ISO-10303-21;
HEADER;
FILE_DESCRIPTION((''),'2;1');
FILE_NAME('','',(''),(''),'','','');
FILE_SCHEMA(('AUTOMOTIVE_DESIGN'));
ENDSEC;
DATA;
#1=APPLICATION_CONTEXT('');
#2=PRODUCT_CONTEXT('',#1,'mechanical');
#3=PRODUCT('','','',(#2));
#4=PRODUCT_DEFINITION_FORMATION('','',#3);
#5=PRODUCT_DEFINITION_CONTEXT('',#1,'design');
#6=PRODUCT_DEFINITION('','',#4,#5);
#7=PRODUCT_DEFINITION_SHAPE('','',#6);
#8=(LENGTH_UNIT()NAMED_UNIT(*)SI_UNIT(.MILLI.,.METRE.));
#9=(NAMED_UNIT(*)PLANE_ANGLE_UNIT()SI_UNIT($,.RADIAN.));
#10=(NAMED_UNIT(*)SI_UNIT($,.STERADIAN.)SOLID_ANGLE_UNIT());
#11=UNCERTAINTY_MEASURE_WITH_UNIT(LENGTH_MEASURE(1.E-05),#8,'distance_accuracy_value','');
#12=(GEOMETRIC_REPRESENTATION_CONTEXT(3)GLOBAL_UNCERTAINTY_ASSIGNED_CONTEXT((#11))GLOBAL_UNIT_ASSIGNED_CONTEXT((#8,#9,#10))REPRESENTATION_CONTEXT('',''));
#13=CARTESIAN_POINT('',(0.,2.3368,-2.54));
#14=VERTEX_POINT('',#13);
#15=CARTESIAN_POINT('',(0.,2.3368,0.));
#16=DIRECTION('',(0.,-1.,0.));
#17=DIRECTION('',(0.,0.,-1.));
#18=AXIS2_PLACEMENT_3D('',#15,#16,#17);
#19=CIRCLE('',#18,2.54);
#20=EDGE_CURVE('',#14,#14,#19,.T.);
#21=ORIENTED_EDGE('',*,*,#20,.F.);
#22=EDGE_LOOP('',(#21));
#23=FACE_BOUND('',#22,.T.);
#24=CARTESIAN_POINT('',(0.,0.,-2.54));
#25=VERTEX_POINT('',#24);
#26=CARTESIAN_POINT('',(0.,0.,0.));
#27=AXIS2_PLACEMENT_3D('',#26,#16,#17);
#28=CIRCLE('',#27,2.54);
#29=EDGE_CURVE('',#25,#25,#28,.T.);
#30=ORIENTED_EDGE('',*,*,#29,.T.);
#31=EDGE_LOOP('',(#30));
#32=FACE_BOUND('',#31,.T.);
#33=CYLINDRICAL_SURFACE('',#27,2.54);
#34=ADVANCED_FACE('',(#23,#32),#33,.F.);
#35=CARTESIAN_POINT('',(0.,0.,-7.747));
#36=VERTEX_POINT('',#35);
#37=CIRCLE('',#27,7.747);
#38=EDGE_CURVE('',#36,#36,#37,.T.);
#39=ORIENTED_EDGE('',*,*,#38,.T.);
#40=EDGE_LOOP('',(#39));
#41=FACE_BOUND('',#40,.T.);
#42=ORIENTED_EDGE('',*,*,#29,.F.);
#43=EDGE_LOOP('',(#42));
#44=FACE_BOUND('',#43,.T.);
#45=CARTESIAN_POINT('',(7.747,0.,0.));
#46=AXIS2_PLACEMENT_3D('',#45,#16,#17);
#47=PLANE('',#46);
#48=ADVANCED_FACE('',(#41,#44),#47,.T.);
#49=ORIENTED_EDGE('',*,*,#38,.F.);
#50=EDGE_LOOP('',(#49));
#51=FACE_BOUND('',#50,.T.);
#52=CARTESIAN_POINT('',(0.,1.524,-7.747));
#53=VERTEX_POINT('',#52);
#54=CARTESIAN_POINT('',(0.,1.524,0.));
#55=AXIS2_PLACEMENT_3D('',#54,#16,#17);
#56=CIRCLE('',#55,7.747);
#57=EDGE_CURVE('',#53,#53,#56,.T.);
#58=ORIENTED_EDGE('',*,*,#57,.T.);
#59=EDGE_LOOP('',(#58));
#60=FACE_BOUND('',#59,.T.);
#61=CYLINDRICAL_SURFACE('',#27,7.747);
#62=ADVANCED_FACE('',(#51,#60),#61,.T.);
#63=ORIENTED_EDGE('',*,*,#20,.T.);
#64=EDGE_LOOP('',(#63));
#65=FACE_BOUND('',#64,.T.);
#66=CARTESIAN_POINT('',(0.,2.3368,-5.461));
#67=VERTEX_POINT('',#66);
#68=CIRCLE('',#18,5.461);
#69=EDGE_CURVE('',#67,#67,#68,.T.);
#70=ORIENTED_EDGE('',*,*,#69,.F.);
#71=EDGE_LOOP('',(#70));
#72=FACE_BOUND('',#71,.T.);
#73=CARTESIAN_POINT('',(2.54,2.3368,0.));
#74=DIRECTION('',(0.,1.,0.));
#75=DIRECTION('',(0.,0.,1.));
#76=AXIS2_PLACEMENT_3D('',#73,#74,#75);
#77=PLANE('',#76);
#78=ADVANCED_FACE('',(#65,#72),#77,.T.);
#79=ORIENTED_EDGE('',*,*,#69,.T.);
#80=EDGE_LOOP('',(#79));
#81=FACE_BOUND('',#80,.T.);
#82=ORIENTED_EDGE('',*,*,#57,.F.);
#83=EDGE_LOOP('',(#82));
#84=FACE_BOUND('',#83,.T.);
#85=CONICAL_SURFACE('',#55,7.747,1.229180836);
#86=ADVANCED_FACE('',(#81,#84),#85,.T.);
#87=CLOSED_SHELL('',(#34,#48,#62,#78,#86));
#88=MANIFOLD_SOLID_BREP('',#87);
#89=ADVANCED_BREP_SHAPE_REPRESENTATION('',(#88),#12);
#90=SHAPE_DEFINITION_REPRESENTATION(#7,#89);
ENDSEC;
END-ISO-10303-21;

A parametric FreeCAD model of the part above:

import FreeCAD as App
import Part
import Sketcher

V = App.Vector
Q = App.Units.Quantity


def add_polygon(sketch, points):
    """Adds a closed chain of lines whose ends are joined by coincident constraints."""
    first, n = sketch.GeometryCount, len(points)
    for a, b in zip(points, points[1:] + points[:1]):
        sketch.addGeometry(Part.LineSegment(App.Vector(*a, 0), App.Vector(*b, 0)), False)
    for i in range(n):
        sketch.addConstraint(Sketcher.Constraint("Coincident", first + i, 2, first + (i + 1) % n, 1))

doc = App.newDocument("Part")
body = doc.addObject("PartDesign::Body", "Body")

# Sketch on XY plane
sketch1 = body.newObject("Sketcher::SketchObject", "Sketch")
sketch1.AttachmentSupport = (doc.getObject("XY_Plane"), [""])
sketch1.MapMode = "FlatFace"
add_polygon(sketch1, [(2.5, 2.3), (2.5, 0), (7.7, 0), (7.7, 1.5), (5.5, 2.3)])  # lines 0-4
sketch1.addConstraint([
    Sketcher.Constraint("Vertical", 0),
    Sketcher.Constraint("Horizontal", 1),
    Sketcher.Constraint("Vertical", 2),
    Sketcher.Constraint("Horizontal", 4),
    Sketcher.Constraint("PointOnObject", 0, 2, -1),
    Sketcher.Constraint("DistanceY", 2, 1, 2, 2, Q("0.06 in")),
    Sketcher.Constraint("DistanceX", -1, 1, 0, 2, Q("0.1 in")),
    Sketcher.Constraint("DistanceX", 1, 1, 1, 2, Q("0.205 in")),
    Sketcher.Constraint("DistanceX", 4, 2, 4, 1, Q("0.115 in")),
    Sketcher.Constraint("DistanceY", 0, 2, 0, 1, Q("0.092 in")),
])
revolution = body.newObject("PartDesign::Revolution", "Revolution")
revolution.Profile = sketch1
revolution.ReferenceAxis = (sketch1, ["V_Axis"])
revolution.Angle = 360

doc.recompute()
